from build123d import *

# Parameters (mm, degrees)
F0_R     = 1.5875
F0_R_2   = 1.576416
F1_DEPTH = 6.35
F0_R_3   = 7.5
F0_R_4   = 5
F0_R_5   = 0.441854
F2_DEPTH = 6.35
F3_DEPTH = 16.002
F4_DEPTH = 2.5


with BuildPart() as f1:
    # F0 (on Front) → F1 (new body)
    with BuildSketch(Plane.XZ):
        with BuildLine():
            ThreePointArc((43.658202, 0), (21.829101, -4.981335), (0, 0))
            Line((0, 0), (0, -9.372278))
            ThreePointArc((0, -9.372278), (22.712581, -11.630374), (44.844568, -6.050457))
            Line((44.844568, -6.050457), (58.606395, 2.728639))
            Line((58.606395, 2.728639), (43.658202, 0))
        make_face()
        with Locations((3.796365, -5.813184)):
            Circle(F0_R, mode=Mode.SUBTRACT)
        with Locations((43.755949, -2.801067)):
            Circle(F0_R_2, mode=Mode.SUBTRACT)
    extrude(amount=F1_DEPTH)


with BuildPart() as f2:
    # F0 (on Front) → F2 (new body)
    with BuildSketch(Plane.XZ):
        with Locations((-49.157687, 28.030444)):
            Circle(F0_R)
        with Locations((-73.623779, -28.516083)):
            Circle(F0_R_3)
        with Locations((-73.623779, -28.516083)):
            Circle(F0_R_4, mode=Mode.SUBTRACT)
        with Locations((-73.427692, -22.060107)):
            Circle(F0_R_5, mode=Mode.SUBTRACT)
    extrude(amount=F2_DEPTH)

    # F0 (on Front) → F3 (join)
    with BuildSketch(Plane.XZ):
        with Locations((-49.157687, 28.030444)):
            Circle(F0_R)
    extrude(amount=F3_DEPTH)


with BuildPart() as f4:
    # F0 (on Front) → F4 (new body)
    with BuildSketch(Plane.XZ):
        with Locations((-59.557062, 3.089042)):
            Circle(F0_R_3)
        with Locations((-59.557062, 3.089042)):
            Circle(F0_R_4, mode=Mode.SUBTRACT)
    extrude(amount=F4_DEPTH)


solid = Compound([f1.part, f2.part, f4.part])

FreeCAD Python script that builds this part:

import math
import FreeCAD as App
import Part
import Sketcher
from FreeCAD import Vector
Q = App.Units.Quantity

doc = App.newDocument("Part")
params = doc.addObject("Spreadsheet::Sheet", "Params")
for row, (alias, value) in enumerate([
    ("pad1_length", "6.35 mm"),
    ("sketch2_diameter", "15 mm"),
    ("sketch2_diameter2", "10 mm"),
    ("pad2_length", "6.35 mm"),
    ("pad3_length", "16.002 mm"),
    ("sketch4_diameter", "15 mm"),
    ("sketch4_diameter2", "10 mm"),
    ("pad4_length", "2.5 mm"),
], start=1):
    params.set(f"A{row}", alias)
    params.set(f"B{row}", "=" + value)
    params.setAlias(f"B{row}", alias)

body = doc.addObject("PartDesign::Body", "Body")

sketch1 = body.newObject("Sketcher::SketchObject", "Sketch")
sketch1.AttachmentSupport = (doc.getObject("XZ_Plane"), [""])
sketch1.MapMode = "FlatFace"
sketch1.addGeometry([
    Part.ArcOfCircle(Part.Circle(Vector(21.8, 45.3, 0), Vector(0, 0, 1), 50.3), math.radians(-116), math.radians(-64)),
    Part.LineSegment(Vector(0, 0, 0), Vector(0, -9.4, 0)),
    Part.ArcOfCircle(Part.Circle(Vector(17.8, 54.5, 0), Vector(0, 0, 1), 66.3), math.radians(-106), math.radians(-66)),
    Part.LineSegment(Vector(44.8, -6.1, 0), Vector(58.6, 2.7, 0)),
    Part.LineSegment(Vector(58.6, 2.7, 0), Vector(43.7, 0, 0)),
    Part.Circle(Vector(3.8, -5.8, 0), Vector(0, 0, 1), 1.6),
    Part.Circle(Vector(43.8, -2.8, 0), Vector(0, 0, 1), 1.6),
], False)
sketch1.addConstraint([
    Sketcher.Constraint("Coincident", 0, 1, 1, 1),
    Sketcher.Constraint("Coincident", 1, 2, 2, 1),
    Sketcher.Constraint("Coincident", 2, 2, 3, 1),
    Sketcher.Constraint("Coincident", 3, 2, 4, 1),
    Sketcher.Constraint("Coincident", 4, 2, 0, 2),
    Sketcher.Constraint("Vertical", 1),
    Sketcher.Constraint("Coincident", 0, 1, -1, 1),
    Sketcher.Constraint("PointOnObject", 4, 2, -1),
    Sketcher.Constraint("Diameter", 5, Q("3.175 mm")),
    Sketcher.Constraint("Radius", 0, Q("50.32018 mm")),
    Sketcher.Constraint("Diameter", 6, Q("3.152832 mm")),
    Sketcher.Constraint("Radius", 2, Q("66.284265 mm")),
    Sketcher.Constraint("DistanceX", -1, 1, 0, 3, Q("21.829101 mm")),
    Sketcher.Constraint("DistanceX", 2, 3, 6, 3, Q("25.9399 mm")),
    Sketcher.Constraint("DistanceY", 1, 2, 1, 1, Q("9.372278 mm")),
    Sketcher.Constraint("DistanceX", -1, 1, 2, 3, Q("17.816049 mm")),
    Sketcher.Constraint("DistanceX", -1, 1, 2, 2, Q("44.844568 mm")),
    Sketcher.Constraint("DistanceY", -1, 1, 3, 2, Q("2.728639 mm")),
    Sketcher.Constraint("DistanceY", 5, 3, 0, 3, Q("51.152029 mm")),
    Sketcher.Constraint("DistanceY", 1, 2, 6, 3, Q("6.571211 mm")),
    Sketcher.Constraint("DistanceX", 5, 3, 3, 2, Q("54.81003 mm")),
    Sketcher.Constraint("Distance", 3, Q("16.323615 mm")),
])
pad1 = body.newObject("PartDesign::Pad", "Pad")
pad1.Profile = sketch1
pad1.setExpression("Length", "Params.pad1_length")
body2 = doc.addObject("PartDesign::Body", "Body001")
body2.AllowCompound = True

sketch2 = body2.newObject("Sketcher::SketchObject", "Sketch001")
sketch2.AttachmentSupport = (doc.getObject("XZ_Plane001"), [""])
sketch2.MapMode = "FlatFace"
sketch2.addGeometry([
    Part.Circle(Vector(-49.16, 28.03, 0), Vector(0, 0, 1), 1.59),
    Part.Circle(Vector(-73.62, -28.52, 0), Vector(0, 0, 1), 7.5),
    Part.Circle(Vector(-73.62, -28.52, 0), Vector(0, 0, 1), 5),
    Part.Circle(Vector(-73.43, -22.06, 0), Vector(0, 0, 1), 0.44),
], False)
sketch2.addConstraint([
    Sketcher.Constraint("Coincident", 2, 3, 1, 3),
    Sketcher.Constraint("Diameter", 1, Q("15 mm")),
    Sketcher.Constraint("Diameter", 2, Q("10 mm")),
    Sketcher.Constraint("Diameter", 0, Q("3.175 mm")),
    Sketcher.Constraint("Diameter", 3, Q("0.883708 mm")),
    Sketcher.Constraint("DistanceX", 1, 3, -1, 1, Q("73.623779 mm")),
    Sketcher.Constraint("DistanceX", 3, 3, -1, 1, Q("73.427692 mm")),
    Sketcher.Constraint("DistanceX", 1, 3, 0, 3, Q("24.466092 mm")),
    Sketcher.Constraint("DistanceY", 3, 3, 0, 3, Q("50.090551 mm")),
    Sketcher.Constraint("DistanceY", -1, 1, 0, 3, Q("28.030444 mm")),
    Sketcher.Constraint("DistanceY", 1, 3, -1, 1, Q("28.516083 mm")),
])
sketch2.setExpression("Constraints[1]", "Params.sketch2_diameter")
sketch2.setExpression("Constraints[2]", "Params.sketch2_diameter2")
pad2 = body2.newObject("PartDesign::Pad", "Pad001")
pad2.Profile = sketch2
pad2.setExpression("Length", "Params.pad2_length")

sketch3 = body2.newObject("Sketcher::SketchObject", "Sketch002")
sketch3.AttachmentSupport = (doc.getObject("XZ_Plane001"), [""])
sketch3.MapMode = "FlatFace"
sketch3.addGeometry(Part.Circle(Vector(-49.2, 28, 0), Vector(0, 0, 1), 1.6), False)
sketch3.addConstraint([
    Sketcher.Constraint("Diameter", 0, Q("3.175 mm")),
    Sketcher.Constraint("DistanceX", 0, 3, -1, 1, Q("49.157687 mm")),
    Sketcher.Constraint("DistanceY", -1, 1, 0, 3, Q("28.030444 mm")),
])
pad3 = body2.newObject("PartDesign::Pad", "Pad002")
pad3.Profile = sketch3
pad3.setExpression("Length", "Params.pad3_length")
body3 = doc.addObject("PartDesign::Body", "Body002")

sketch4 = body3.newObject("Sketcher::SketchObject", "Sketch003")
sketch4.AttachmentSupport = (doc.getObject("XZ_Plane002"), [""])
sketch4.MapMode = "FlatFace"
sketch4.addGeometry([
    Part.Circle(Vector(-60, 3, 0), Vector(0, 0, 1), 8),
    Part.Circle(Vector(-60, 3, 0), Vector(0, 0, 1), 5),
], False)
sketch4.addConstraint([
    Sketcher.Constraint("Coincident", 1, 3, 0, 3),
    Sketcher.Constraint("Diameter", 0, Q("15 mm")),
    Sketcher.Constraint("Diameter", 1, Q("10 mm")),
    Sketcher.Constraint("DistanceX", 0, 3, -1, 1, Q("59.557062 mm")),
    Sketcher.Constraint("DistanceY", -1, 1, 0, 3, Q("3.089042 mm")),
])
sketch4.setExpression("Constraints[1]", "Params.sketch4_diameter")
sketch4.setExpression("Constraints[2]", "Params.sketch4_diameter2")
pad4 = body3.newObject("PartDesign::Pad", "Pad003")
pad4.Profile = sketch4
pad4.setExpression("Length", "Params.pad4_length")

doc.recompute()
